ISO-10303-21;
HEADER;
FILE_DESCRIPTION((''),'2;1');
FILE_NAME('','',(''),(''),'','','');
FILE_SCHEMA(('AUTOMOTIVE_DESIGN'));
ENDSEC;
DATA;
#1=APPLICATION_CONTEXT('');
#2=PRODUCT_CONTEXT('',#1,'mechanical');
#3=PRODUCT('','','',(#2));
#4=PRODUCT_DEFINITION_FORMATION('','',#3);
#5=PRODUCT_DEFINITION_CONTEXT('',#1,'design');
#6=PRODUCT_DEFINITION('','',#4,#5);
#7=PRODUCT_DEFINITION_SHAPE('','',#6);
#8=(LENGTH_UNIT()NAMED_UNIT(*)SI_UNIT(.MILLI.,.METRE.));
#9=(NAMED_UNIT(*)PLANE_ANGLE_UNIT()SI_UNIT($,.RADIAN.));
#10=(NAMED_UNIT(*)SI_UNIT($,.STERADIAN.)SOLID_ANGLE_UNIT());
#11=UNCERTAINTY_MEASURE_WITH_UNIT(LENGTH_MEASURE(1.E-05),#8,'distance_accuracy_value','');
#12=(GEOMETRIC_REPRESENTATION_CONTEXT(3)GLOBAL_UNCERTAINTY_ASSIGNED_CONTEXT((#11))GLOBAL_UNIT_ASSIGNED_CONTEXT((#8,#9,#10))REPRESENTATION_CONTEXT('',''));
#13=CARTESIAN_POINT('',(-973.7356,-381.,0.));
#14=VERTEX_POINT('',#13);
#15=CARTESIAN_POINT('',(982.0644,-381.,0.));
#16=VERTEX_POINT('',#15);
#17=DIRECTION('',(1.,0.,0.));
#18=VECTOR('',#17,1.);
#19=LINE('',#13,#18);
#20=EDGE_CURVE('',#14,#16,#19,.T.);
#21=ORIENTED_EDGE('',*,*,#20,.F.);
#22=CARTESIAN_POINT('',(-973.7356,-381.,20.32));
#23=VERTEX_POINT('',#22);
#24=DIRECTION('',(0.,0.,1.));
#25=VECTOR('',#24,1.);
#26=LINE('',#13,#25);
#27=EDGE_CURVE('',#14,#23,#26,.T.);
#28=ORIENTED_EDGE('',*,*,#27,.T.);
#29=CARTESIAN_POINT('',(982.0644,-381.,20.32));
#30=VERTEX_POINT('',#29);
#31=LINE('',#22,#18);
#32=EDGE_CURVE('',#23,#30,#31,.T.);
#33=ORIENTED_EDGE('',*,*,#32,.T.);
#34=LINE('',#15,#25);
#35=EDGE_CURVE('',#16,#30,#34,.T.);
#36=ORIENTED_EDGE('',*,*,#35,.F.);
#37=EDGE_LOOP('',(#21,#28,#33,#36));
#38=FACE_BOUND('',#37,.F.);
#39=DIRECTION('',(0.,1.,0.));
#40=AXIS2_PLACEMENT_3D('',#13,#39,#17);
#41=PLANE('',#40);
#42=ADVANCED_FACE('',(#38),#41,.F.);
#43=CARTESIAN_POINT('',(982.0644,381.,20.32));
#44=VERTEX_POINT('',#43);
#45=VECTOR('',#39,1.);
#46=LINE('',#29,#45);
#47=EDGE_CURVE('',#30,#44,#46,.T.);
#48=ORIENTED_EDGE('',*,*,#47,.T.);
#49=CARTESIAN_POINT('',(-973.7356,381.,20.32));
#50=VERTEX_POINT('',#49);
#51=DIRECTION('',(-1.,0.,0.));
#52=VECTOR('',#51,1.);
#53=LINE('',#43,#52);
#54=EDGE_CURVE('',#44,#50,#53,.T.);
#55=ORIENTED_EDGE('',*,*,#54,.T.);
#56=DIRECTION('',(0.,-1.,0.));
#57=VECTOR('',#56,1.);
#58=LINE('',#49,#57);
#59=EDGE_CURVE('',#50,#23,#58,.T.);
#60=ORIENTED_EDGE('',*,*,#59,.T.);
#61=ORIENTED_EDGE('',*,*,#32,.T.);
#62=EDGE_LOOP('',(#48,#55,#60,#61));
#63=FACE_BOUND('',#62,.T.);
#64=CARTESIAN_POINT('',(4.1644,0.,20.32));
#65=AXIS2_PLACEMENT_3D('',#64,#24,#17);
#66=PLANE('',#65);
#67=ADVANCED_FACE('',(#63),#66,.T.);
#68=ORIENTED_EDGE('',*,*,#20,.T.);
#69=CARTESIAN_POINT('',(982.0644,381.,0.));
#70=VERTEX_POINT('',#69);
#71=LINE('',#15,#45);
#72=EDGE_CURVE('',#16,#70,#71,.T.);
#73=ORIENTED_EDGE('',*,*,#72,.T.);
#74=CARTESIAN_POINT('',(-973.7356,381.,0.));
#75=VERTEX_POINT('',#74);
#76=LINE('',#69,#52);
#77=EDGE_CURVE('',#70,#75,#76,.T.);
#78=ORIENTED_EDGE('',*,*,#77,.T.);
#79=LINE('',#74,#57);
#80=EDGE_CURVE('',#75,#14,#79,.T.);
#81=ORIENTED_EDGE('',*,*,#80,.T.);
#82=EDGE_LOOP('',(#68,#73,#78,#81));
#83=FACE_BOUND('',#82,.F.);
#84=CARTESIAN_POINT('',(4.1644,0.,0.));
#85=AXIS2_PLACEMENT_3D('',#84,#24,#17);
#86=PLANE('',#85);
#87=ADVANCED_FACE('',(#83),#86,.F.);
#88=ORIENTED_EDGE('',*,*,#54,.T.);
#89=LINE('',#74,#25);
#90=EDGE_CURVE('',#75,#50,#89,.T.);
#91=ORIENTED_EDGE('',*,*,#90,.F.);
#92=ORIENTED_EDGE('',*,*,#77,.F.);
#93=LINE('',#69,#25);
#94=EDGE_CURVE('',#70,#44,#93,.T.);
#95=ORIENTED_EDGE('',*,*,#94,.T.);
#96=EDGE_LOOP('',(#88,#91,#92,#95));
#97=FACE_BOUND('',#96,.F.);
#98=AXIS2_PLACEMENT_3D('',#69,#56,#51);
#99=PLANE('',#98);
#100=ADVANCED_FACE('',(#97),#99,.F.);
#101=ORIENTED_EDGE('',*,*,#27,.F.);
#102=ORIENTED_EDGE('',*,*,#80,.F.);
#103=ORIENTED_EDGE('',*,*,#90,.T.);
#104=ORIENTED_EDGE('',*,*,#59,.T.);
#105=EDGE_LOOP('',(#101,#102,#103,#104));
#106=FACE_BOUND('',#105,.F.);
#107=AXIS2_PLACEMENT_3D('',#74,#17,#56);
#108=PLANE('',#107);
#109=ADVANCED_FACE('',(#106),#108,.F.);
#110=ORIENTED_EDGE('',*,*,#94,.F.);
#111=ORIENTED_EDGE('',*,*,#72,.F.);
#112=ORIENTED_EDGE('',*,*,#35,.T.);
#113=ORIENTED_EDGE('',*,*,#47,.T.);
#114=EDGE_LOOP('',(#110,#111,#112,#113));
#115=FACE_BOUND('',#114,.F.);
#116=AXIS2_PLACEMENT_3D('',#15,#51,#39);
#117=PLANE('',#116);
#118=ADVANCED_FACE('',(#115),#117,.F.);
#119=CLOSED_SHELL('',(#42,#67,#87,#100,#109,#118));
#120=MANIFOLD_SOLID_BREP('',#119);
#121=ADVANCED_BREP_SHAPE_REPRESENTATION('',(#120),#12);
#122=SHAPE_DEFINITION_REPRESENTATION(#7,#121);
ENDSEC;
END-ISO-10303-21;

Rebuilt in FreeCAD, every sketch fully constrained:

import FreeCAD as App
import Part
import Sketcher
from FreeCAD import Vector
Q = App.Units.Quantity

doc = App.newDocument("Part")
body = doc.addObject("PartDesign::Body", "Body")

# Sketch on XY plane
sketch1 = body.newObject("Sketcher::SketchObject", "Sketch")
sketch1.AttachmentSupport = (doc.getObject("XY_Plane"), [""])
sketch1.MapMode = "FlatFace"
sketch1.addGeometry([
    Part.LineSegment(Vector(-974, 381, 0), Vector(-974, -381, 0)),
    Part.LineSegment(Vector(-974, -381, 0), Vector(982, -381, 0)),
    Part.LineSegment(Vector(982, -381, 0), Vector(982, 381, 0)),
    Part.LineSegment(Vector(982, 381, 0), Vector(-974, 381, 0)),
], False)
sketch1.addConstraint([
    Sketcher.Constraint("Coincident", 0, 2, 1, 1),
    Sketcher.Constraint("Coincident", 1, 2, 2, 1),
    Sketcher.Constraint("Coincident", 2, 2, 3, 1),
    Sketcher.Constraint("Coincident", 3, 2, 0, 1),
    Sketcher.Constraint("Vertical", 0),
    Sketcher.Constraint("Horizontal", 1),
    Sketcher.Constraint("Vertical", 2),
    Sketcher.Constraint("Horizontal", 3),
    Sketcher.Constraint("DistanceX", 1, 1, 1, 2, Q("77 in")),
    Sketcher.Constraint("DistanceY", 0, 2, 0, 1, Q("30 in")),
    Sketcher.Constraint("DistanceY", 0, 2, -1, 1, Q("15 in")),
    Sketcher.Constraint("DistanceX", 0, 2, -1, 1, 973.7356),
])
pad1 = body.newObject("PartDesign::Pad", "Pad")
pad1.Profile = sketch1
pad1.Length = Q("0.8 in")

doc.recompute()
